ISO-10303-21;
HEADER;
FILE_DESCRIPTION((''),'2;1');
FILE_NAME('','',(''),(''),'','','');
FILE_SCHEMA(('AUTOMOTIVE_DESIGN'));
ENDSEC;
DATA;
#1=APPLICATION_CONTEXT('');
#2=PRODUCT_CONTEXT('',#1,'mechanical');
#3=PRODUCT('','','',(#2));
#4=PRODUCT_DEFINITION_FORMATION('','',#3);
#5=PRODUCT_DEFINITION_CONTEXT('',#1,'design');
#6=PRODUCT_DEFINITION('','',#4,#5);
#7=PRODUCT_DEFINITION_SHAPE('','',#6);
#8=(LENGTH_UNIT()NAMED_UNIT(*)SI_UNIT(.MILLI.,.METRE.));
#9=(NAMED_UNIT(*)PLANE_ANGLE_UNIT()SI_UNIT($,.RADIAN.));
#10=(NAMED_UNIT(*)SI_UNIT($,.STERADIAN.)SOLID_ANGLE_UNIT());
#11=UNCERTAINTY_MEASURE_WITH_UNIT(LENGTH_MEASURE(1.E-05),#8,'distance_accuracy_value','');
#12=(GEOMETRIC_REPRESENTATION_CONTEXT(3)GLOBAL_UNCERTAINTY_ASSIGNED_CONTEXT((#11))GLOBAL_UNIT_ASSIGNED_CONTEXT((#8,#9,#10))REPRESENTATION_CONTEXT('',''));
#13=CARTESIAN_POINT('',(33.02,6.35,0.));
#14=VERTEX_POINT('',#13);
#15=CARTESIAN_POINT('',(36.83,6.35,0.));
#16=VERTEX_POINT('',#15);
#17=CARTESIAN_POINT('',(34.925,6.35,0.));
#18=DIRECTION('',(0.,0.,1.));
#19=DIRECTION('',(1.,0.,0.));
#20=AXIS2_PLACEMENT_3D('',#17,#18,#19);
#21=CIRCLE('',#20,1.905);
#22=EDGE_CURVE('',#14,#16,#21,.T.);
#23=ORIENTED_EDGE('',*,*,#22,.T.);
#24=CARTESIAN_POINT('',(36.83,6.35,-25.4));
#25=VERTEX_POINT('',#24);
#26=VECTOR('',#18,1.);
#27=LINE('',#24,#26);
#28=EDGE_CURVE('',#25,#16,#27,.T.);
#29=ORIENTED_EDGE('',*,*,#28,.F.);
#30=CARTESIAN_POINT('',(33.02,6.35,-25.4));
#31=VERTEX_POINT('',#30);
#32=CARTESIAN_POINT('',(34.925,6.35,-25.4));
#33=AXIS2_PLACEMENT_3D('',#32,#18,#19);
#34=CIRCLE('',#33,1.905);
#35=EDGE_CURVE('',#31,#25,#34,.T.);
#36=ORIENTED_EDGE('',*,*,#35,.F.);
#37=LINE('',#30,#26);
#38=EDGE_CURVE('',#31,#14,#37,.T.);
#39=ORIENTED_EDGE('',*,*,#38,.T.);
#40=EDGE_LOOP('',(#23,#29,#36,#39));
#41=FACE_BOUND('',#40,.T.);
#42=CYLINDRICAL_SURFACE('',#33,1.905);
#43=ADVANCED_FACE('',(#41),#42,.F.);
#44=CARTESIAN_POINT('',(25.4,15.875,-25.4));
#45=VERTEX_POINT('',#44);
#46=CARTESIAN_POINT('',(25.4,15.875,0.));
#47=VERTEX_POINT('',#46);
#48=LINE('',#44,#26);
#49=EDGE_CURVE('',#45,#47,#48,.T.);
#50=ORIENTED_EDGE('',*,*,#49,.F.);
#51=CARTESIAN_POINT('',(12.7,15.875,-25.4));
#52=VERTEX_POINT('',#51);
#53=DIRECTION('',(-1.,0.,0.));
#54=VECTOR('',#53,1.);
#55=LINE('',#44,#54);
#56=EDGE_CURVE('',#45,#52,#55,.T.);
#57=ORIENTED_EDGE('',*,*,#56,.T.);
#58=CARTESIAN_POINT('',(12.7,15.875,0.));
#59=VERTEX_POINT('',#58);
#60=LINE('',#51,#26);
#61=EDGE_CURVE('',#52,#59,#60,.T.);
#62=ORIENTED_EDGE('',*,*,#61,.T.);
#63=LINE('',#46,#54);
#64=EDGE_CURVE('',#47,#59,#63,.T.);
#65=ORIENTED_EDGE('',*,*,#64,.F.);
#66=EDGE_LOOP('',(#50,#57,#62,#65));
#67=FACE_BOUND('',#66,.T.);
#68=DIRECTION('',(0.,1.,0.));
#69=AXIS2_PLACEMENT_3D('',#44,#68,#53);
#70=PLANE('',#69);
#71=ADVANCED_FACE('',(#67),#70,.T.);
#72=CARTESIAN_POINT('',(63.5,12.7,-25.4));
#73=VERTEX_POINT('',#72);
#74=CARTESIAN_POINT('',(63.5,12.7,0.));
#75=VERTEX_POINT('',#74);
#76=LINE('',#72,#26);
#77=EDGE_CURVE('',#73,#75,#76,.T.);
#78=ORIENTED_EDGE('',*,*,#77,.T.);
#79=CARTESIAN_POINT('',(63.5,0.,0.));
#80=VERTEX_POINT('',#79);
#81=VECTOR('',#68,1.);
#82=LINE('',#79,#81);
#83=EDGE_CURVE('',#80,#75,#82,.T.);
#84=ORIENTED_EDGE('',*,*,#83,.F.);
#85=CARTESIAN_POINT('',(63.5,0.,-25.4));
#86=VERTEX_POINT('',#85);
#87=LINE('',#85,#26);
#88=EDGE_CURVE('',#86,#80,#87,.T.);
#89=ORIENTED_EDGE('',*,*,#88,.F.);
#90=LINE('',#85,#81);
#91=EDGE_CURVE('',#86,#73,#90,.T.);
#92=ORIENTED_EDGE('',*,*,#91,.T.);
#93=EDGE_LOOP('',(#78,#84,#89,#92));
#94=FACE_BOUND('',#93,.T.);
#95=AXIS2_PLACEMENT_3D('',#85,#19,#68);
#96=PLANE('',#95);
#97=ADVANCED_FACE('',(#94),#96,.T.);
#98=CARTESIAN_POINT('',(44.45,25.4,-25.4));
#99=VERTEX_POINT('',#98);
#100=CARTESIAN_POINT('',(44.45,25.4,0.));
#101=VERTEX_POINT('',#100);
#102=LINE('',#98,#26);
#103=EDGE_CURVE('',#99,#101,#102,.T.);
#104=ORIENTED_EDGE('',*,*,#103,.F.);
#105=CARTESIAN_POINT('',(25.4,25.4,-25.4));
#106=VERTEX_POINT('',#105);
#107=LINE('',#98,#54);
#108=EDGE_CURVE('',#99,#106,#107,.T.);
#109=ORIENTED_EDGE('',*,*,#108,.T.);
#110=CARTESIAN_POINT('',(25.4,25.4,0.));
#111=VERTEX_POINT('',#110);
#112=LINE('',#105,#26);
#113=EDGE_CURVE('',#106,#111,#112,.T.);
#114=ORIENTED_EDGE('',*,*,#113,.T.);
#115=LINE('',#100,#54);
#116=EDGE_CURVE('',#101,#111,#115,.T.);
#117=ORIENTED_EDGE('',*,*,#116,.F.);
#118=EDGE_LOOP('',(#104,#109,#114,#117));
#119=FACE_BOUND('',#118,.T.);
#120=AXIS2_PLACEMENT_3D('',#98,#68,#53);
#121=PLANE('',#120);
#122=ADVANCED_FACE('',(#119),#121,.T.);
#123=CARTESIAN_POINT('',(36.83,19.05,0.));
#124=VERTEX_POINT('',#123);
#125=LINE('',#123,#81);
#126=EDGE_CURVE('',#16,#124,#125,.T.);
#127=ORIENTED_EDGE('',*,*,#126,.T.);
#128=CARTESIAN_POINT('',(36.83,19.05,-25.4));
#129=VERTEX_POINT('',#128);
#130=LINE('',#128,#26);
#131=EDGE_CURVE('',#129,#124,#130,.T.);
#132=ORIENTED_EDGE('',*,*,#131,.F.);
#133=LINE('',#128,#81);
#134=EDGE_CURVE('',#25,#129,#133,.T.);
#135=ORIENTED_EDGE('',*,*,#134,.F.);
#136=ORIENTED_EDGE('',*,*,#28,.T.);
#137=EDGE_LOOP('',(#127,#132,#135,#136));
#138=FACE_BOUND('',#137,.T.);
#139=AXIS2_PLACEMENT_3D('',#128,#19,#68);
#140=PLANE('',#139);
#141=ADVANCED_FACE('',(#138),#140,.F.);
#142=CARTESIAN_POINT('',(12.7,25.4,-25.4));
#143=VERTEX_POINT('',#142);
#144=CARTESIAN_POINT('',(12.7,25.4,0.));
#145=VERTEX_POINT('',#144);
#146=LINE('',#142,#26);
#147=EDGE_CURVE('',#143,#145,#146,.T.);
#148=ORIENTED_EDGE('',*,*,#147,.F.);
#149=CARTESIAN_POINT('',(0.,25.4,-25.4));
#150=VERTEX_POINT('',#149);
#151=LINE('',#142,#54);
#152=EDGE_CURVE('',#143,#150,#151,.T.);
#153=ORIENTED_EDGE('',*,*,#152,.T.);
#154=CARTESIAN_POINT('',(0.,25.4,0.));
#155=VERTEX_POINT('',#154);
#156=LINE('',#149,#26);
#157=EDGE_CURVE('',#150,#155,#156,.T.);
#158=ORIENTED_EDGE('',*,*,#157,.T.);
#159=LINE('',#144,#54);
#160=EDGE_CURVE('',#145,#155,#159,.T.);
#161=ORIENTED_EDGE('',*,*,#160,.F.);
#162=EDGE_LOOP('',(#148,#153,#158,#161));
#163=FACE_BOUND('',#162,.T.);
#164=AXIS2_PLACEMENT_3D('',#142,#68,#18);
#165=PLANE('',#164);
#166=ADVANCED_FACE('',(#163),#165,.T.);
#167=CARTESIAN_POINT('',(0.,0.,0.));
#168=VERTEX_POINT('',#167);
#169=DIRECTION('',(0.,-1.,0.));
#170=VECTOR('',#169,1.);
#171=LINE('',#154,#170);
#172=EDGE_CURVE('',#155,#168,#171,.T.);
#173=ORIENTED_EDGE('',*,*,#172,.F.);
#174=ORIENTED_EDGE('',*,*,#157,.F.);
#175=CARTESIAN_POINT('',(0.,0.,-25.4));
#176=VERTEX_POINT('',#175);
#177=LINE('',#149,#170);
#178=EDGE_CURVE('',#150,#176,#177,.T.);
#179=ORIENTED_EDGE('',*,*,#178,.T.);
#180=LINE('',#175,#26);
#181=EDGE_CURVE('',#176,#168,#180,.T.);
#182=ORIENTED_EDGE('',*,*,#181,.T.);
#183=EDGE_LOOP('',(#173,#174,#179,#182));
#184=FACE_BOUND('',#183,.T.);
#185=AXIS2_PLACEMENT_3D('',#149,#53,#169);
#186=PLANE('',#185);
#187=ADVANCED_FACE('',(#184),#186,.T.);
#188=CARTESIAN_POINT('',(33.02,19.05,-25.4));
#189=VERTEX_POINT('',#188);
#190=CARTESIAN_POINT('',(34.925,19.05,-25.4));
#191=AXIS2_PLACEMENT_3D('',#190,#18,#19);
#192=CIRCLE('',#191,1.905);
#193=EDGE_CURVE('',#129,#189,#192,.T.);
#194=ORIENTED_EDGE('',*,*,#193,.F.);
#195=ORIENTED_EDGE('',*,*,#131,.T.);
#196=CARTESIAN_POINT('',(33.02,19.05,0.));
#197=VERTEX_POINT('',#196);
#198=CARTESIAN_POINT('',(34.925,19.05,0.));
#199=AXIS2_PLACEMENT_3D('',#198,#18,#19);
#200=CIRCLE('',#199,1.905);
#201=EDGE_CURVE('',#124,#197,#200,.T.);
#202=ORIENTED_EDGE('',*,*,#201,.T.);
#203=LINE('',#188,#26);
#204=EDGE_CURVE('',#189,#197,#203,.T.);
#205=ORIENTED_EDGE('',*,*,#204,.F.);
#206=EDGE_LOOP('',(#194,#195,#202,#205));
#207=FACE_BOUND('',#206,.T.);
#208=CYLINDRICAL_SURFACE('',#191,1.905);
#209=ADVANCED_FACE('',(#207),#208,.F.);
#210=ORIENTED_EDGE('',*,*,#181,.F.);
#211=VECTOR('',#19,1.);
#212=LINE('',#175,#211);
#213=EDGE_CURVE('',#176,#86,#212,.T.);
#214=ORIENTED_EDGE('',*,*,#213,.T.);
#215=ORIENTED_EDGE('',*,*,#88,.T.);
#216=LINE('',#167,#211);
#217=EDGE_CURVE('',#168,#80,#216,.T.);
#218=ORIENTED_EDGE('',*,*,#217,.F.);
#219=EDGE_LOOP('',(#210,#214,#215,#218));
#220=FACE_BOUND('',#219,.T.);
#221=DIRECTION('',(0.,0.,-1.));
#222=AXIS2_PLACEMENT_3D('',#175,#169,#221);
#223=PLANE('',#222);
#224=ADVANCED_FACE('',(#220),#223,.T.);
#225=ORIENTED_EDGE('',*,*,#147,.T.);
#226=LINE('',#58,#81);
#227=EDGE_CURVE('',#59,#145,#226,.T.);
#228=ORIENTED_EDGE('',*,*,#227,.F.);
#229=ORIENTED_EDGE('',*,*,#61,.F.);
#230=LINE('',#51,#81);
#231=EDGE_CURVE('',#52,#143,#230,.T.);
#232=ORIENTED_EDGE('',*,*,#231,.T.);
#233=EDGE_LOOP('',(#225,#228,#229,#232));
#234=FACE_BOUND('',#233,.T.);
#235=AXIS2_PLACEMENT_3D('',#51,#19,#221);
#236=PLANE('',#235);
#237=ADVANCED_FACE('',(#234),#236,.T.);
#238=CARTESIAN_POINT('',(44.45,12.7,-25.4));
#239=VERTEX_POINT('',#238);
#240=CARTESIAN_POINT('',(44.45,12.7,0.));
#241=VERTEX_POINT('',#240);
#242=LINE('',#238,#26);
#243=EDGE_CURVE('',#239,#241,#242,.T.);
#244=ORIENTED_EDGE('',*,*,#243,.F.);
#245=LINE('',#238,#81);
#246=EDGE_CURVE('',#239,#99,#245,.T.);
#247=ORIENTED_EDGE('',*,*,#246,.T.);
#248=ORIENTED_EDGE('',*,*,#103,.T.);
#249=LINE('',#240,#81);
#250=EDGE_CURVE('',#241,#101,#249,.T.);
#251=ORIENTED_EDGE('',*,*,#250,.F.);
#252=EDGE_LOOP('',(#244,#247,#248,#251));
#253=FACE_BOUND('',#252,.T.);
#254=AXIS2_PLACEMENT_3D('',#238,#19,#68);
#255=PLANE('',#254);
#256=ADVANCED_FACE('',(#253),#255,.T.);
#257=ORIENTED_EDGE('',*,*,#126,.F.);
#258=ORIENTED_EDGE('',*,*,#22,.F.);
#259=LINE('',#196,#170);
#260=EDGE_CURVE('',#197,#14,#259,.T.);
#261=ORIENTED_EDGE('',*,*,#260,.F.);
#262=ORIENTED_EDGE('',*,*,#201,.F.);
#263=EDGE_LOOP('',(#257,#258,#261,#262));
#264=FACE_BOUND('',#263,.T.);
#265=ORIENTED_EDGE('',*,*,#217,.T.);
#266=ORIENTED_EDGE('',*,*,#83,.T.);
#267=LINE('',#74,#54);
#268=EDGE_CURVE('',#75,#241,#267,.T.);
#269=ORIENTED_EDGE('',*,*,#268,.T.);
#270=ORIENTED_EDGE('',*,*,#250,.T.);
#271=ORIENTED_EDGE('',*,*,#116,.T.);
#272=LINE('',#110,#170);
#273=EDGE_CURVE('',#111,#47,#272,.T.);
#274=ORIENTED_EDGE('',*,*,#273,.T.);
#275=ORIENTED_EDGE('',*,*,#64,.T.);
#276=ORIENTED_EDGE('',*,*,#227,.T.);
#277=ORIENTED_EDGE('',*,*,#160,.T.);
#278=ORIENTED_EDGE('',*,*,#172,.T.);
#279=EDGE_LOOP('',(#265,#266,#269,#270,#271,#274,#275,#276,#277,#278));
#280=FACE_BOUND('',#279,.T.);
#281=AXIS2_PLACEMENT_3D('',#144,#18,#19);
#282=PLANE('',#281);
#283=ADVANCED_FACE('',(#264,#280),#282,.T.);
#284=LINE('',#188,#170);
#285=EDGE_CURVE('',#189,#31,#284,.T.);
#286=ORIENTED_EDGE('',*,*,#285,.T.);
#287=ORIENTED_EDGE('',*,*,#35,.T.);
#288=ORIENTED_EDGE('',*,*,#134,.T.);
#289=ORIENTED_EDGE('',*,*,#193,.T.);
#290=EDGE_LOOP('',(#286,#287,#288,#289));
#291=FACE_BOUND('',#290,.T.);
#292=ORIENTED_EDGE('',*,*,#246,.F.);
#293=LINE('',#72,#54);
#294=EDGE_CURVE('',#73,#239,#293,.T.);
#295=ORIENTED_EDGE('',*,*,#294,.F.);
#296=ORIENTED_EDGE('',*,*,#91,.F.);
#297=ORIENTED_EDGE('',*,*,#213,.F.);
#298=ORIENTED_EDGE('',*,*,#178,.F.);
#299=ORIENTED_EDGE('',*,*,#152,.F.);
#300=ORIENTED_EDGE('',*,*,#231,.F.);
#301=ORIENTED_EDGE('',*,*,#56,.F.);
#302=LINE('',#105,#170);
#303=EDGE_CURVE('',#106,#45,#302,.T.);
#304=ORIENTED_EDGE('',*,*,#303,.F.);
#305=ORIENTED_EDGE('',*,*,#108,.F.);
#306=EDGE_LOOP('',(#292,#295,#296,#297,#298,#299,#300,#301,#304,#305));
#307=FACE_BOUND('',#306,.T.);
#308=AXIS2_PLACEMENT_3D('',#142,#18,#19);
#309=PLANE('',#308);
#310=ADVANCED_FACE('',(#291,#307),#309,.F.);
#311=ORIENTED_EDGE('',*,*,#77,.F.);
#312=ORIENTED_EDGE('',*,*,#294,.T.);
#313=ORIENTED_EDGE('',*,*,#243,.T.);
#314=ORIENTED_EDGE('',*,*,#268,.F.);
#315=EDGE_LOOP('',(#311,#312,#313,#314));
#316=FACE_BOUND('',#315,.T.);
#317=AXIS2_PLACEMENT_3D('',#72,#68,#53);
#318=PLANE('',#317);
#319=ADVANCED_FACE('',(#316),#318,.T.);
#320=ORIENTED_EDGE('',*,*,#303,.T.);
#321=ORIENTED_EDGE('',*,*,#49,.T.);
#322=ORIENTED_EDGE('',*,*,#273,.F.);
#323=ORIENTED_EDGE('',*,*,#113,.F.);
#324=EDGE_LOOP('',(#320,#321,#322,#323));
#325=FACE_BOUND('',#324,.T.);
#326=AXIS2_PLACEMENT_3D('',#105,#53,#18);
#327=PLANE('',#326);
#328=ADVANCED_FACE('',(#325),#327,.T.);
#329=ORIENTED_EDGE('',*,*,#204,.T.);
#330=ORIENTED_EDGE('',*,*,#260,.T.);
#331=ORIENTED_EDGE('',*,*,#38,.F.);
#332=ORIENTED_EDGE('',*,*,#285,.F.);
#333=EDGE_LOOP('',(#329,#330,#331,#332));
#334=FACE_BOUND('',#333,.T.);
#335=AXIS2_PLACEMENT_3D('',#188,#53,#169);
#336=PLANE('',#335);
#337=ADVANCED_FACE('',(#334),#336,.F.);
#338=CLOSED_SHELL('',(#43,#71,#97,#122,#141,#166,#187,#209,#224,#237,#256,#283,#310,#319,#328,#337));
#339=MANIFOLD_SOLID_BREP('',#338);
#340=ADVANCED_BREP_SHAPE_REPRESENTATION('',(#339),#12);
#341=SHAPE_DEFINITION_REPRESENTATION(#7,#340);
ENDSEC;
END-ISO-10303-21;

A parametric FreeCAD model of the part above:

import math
import FreeCAD as App
import Part
import Sketcher
Q = App.Units.Quantity


def add_polygon(sketch, points):
    """Adds a closed chain of lines whose ends are joined by coincident constraints."""
    first, n = sketch.GeometryCount, len(points)
    for a, b in zip(points, points[1:] + points[:1]):
        sketch.addGeometry(Part.LineSegment(App.Vector(*a, 0), App.Vector(*b, 0)), False)
    for i in range(n):
        sketch.addConstraint(Sketcher.Constraint("Coincident", first + i, 2, first + (i + 1) % n, 1))

doc = App.newDocument("Part")
params = doc.addObject("Spreadsheet::Sheet", "Params")
for row, (alias, value) in enumerate([
    ("sketch1_height", "1 in"),
    ("sketch1_width", "2.5 in"),
    ("sketch1_radius", "0.075 in"),
    ("sketch1_height2", "0.375 in"),
    ("pad1_length", "1 in"),
], start=1):
    params.set(f"A{row}", alias)
    params.set(f"B{row}", "=" + value)
    params.setAlias(f"B{row}", alias)

body = doc.addObject("PartDesign::Body", "Body")

# Sketch on XY plane
sketch1 = body.newObject("Sketcher::SketchObject", "Sketch")
sketch1.AttachmentSupport = (doc.getObject("XY_Plane"), [""])
sketch1.MapMode = "FlatFace"
add_polygon(sketch1, [(12.7, 25.4), (0, 25.4), (0, 0), (63.5, 0), (63.5, 12.7), (44.5, 12.7), (44.5, 25.4), (25.4, 25.4), (25.4, 15.9), (12.7, 15.9)])  # lines 0-9
sketch1.addGeometry(Part.ArcOfCircle(Part.Circle(App.Vector(34.9, 19.1, 0), App.Vector(0, 0, 1), 1.9), math.radians(0), math.radians(180)), False)  # 10
sketch1.addGeometry(Part.LineSegment(App.Vector(36.8, 19.1, 0), App.Vector(36.8, 6.3, 0)), False)  # 11
sketch1.addGeometry(Part.ArcOfCircle(Part.Circle(App.Vector(34.9, 6.3, 0), App.Vector(0, 0, 1), 1.9), math.radians(180), math.radians(360)), False)  # 12
sketch1.addGeometry(Part.LineSegment(App.Vector(33, 6.3, 0), App.Vector(33, 19.1, 0)), False)  # 13
sketch1.addConstraint([
    Sketcher.Constraint("Tangent", 10, 1, 11, 1),
    Sketcher.Constraint("Tangent", 11, 2, 12, 2),
    Sketcher.Constraint("Tangent", 12, 1, 13, 1),
    Sketcher.Constraint("Tangent", 13, 2, 10, 2),
    Sketcher.Constraint("Horizontal", 0),
    Sketcher.Constraint("Vertical", 1),
    Sketcher.Constraint("Horizontal", 2),
    Sketcher.Constraint("Vertical", 3),
    Sketcher.Constraint("Horizontal", 4),
    Sketcher.Constraint("Vertical", 5),
    Sketcher.Constraint("Horizontal", 6),
    Sketcher.Constraint("Vertical", 7),
    Sketcher.Constraint("Horizontal", 8),
    Sketcher.Constraint("Vertical", 9),
    Sketcher.Constraint("Vertical", 11),
    Sketcher.Constraint("Vertical", 13),
    Sketcher.Constraint("Coincident", 1, 2, -1, 1),
    Sketcher.Constraint("Horizontal", 0, 2, 5, 2),
    Sketcher.Constraint("Equal", 4, 6),
    Sketcher.Constraint("Equal", 0, 8),
    Sketcher.Constraint("Equal", 8, 3),
    Sketcher.Constraint("Equal", 3, 5),
    Sketcher.Constraint("Equal", 5, 11),
    Sketcher.Constraint("DistanceY", 1, 2, 1, 1, Q("1 in")),
    Sketcher.Constraint("DistanceX", 2, 1, 2, 2, Q("2.5 in")),
    Sketcher.Constraint("Radius", 10, Q("0.075 in")),
    Sketcher.Constraint("DistanceX", -1, 1, 12, 1, Q("1.3 in")),
    Sketcher.Constraint("DistanceY", 7, 2, 7, 1, Q("0.375 in")),
    Sketcher.Constraint("DistanceY", -1, 1, 10, 3, Q("0.75 in")),
])
sketch1.setExpression("Constraints[33]", "Params.sketch1_height")
sketch1.setExpression("Constraints[34]", "Params.sketch1_width")
sketch1.setExpression("Constraints[35]", "Params.sketch1_radius")
sketch1.setExpression("Constraints[37]", "Params.sketch1_height2")
pad1 = body.newObject("PartDesign::Pad", "Pad")
pad1.Profile = sketch1
pad1.setExpression("Length", "Params.pad1_length")
pad1.Reversed = True

doc.recompute()
